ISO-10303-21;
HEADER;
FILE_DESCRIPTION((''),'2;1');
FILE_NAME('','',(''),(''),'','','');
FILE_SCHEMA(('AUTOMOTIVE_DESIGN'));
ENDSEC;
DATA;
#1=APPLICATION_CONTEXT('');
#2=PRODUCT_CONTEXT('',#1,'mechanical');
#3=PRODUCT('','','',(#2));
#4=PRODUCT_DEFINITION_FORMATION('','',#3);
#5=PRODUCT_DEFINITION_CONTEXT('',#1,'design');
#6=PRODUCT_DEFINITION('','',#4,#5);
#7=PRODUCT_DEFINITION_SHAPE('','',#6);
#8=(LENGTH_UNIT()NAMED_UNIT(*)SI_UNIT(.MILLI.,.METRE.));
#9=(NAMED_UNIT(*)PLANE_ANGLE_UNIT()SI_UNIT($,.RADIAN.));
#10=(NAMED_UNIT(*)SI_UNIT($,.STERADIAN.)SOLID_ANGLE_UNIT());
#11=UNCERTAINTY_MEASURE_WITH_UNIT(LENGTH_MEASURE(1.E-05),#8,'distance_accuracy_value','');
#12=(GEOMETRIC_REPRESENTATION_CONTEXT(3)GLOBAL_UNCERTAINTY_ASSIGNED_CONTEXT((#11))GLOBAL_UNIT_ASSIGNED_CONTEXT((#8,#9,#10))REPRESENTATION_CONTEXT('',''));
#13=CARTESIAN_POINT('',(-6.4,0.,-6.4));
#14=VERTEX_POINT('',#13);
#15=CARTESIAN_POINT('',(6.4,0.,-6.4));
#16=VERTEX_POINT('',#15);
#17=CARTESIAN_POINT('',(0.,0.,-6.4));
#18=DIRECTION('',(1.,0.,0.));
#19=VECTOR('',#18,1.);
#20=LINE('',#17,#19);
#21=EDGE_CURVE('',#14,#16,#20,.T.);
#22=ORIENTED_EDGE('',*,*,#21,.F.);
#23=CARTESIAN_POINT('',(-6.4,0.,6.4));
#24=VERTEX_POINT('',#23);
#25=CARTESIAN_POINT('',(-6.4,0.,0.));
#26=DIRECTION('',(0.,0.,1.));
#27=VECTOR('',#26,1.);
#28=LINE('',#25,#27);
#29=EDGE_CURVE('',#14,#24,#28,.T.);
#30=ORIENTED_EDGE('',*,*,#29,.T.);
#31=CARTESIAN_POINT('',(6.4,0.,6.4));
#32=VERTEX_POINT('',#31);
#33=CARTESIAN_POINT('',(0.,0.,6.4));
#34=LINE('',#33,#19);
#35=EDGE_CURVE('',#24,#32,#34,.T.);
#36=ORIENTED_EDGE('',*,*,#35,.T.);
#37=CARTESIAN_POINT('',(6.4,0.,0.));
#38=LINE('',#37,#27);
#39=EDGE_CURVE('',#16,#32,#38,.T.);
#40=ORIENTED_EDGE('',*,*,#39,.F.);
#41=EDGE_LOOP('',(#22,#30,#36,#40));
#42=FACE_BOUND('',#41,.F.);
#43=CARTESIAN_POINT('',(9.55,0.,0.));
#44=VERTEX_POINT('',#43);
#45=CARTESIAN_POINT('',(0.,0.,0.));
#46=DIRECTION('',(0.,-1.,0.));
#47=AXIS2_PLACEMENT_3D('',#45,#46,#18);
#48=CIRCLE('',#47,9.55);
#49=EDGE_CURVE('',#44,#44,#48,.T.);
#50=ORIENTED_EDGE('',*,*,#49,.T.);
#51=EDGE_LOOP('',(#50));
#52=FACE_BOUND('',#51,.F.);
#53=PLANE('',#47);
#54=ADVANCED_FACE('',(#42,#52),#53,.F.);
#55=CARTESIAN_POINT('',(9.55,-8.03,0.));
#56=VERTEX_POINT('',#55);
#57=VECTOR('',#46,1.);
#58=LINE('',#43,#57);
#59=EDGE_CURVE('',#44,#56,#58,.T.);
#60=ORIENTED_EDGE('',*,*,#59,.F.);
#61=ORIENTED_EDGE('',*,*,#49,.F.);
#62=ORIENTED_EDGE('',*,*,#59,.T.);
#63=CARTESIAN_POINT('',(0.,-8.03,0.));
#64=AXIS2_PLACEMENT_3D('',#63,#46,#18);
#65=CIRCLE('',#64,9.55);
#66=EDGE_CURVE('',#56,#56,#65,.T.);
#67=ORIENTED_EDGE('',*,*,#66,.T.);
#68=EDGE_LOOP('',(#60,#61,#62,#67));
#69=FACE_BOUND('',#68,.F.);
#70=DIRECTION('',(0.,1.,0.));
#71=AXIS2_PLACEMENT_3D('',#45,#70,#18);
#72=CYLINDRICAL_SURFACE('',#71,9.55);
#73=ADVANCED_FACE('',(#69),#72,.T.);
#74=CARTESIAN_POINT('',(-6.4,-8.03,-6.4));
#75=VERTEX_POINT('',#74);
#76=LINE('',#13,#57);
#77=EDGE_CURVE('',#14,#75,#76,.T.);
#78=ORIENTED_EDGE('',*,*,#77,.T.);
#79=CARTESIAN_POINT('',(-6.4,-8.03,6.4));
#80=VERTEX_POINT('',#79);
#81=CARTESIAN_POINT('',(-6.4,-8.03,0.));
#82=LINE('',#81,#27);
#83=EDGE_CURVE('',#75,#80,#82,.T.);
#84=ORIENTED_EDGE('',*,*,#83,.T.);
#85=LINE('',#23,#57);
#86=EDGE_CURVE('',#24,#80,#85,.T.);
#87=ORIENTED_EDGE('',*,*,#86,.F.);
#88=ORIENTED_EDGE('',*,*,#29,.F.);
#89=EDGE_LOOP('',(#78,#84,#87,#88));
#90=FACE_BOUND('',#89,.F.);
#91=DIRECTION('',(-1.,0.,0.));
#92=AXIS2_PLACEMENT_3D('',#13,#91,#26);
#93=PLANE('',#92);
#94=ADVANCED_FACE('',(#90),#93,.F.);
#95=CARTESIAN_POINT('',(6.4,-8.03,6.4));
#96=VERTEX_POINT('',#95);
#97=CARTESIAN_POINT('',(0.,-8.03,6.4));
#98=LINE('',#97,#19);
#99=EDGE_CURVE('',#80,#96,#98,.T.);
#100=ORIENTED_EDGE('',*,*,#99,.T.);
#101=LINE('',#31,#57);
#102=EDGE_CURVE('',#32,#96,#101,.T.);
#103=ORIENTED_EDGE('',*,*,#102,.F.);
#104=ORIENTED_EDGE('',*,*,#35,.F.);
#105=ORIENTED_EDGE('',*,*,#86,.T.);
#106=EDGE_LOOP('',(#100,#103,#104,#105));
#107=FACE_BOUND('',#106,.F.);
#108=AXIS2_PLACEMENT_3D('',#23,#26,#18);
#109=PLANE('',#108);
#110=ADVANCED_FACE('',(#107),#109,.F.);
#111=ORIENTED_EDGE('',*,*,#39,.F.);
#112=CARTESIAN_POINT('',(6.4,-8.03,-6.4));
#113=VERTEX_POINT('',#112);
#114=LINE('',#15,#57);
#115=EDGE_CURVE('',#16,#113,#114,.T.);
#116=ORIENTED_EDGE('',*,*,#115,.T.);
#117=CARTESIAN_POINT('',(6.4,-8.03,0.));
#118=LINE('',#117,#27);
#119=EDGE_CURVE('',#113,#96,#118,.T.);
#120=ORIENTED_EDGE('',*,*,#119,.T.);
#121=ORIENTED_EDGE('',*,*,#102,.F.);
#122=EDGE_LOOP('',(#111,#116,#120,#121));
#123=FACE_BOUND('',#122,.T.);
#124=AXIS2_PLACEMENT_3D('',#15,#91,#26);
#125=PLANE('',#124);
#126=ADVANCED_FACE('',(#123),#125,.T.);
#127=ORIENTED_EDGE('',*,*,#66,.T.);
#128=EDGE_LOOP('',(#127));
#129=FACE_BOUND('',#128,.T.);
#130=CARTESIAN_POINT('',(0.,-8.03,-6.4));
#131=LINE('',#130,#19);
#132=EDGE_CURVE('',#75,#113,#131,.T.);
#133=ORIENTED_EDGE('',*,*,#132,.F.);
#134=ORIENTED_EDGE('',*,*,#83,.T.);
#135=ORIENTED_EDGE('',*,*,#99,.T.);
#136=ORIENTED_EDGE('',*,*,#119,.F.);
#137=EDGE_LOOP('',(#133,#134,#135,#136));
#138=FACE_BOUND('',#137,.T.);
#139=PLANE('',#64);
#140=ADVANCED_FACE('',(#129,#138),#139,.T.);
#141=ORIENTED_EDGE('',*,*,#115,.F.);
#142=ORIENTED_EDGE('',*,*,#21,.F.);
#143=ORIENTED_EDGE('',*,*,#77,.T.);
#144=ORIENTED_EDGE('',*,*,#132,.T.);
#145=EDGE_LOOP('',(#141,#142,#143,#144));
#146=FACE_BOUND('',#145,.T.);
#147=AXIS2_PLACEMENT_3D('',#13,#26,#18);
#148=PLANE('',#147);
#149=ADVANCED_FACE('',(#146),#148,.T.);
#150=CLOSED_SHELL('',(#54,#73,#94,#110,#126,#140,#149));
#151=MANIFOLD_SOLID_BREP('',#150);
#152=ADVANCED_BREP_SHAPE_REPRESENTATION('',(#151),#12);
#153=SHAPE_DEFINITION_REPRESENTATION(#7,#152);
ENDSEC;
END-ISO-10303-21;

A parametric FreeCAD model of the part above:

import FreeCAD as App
import Part
import Sketcher

doc = App.newDocument("Part")
body = doc.addObject("PartDesign::Body", "Body")

# Sketch on XZ plane
sketch1 = body.newObject("Sketcher::SketchObject", "Sketch")
sketch1.AttachmentSupport = (doc.getObject("XZ_Plane"), [""])
sketch1.MapMode = "FlatFace"
sketch1.addGeometry([
    Part.Circle(App.Vector(0, 0, 0), App.Vector(0, 0, 1), 10),  # 0
    Part.LineSegment(App.Vector(6, -6, 0), App.Vector(-6, -6, 0)),  # 1
    Part.LineSegment(App.Vector(-6, -6, 0), App.Vector(-6, 6, 0)),  # 2
    Part.LineSegment(App.Vector(-6, 6, 0), App.Vector(6, 6, 0)),  # 3
    Part.LineSegment(App.Vector(6, 6, 0), App.Vector(6, -6, 0)),  # 4
], False)
sketch1.addConstraint([
    Sketcher.Constraint("Coincident", 1, 2, 2, 1),
    Sketcher.Constraint("Coincident", 2, 2, 3, 1),
    Sketcher.Constraint("Coincident", 3, 2, 4, 1),
    Sketcher.Constraint("Coincident", 4, 2, 1, 1),
    Sketcher.Constraint("Horizontal", 1),
    Sketcher.Constraint("Vertical", 2),
    Sketcher.Constraint("Horizontal", 3),
    Sketcher.Constraint("Vertical", 4),
    Sketcher.Constraint("Coincident", 0, 3, -1, 1),
    Sketcher.Constraint("Symmetric", 1, 2, 3, 2, -1, 1),
    Sketcher.Constraint("Equal", 3, 2),
    Sketcher.Constraint("Diameter", 0, 19.1),
    Sketcher.Constraint("DistanceX", 1, 2, 1, 1, 12.8),
])
pad1 = body.newObject("PartDesign::Pad", "Pad")
pad1.Profile = sketch1
pad1.Length = 8.03

doc.recompute()
